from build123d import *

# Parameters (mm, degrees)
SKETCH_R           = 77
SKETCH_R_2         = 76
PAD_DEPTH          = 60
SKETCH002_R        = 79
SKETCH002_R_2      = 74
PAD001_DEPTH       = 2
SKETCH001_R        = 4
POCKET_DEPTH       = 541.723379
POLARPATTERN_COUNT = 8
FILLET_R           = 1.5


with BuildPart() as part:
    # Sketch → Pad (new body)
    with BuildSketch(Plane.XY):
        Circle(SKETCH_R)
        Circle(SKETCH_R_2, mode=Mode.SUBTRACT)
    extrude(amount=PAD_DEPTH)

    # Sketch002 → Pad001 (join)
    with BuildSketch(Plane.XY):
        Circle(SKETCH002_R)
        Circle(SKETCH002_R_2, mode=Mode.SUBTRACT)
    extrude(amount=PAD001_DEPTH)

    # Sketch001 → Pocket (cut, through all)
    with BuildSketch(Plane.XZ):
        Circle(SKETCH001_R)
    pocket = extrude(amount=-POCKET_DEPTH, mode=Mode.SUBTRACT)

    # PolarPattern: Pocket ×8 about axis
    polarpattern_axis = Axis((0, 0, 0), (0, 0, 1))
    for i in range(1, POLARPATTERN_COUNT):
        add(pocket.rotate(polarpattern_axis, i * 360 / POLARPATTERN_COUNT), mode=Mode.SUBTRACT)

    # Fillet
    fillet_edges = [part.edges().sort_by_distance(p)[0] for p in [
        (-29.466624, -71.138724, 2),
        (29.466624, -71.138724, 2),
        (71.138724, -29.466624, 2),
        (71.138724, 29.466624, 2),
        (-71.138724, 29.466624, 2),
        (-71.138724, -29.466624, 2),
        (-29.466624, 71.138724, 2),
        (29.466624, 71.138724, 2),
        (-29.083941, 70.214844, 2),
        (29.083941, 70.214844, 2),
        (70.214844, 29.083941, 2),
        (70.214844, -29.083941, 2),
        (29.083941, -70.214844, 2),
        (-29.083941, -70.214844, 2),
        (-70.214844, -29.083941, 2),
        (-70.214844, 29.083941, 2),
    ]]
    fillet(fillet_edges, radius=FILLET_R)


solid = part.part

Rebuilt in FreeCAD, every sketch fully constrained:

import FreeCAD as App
import Part
import Sketcher
from FreeCAD import Vector


def edges_at(feature, points):
    """Names of the edges that pass closest to the given points."""
    edges = feature.Shape.Edges
    near = lambda p: min(range(len(edges)), key=lambda i: edges[i].distToShape(Part.Vertex(*p))[0])
    return sorted({f"Edge{near(p) + 1}" for p in points})

doc = App.newDocument("Part")
body = doc.addObject("PartDesign::Body", "Body")

sketch1 = body.newObject("Sketcher::SketchObject", "Sketch")
sketch1.AttachmentSupport = (doc.getObject("XY_Plane"), [""])
sketch1.MapMode = "FlatFace"
sketch1.addGeometry([
    Part.Circle(Vector(0, 0, 0), Vector(0, 0, 1), 77),
    Part.Circle(Vector(0, 0, 0), Vector(0, 0, 1), 76),
], False)
sketch1.addConstraint([
    Sketcher.Constraint("Coincident", 0, 3, -1, 1),
    Sketcher.Constraint("Coincident", 1, 3, -1, 1),
    Sketcher.Constraint("Diameter", 0, 154.0),
    Sketcher.Constraint("Diameter", 1, 152.0),
])
pad1 = body.newObject("PartDesign::Pad", "Pad")
pad1.Profile = sketch1
pad1.Length = 60

sketch2 = body.newObject("Sketcher::SketchObject", "Sketch001")
sketch2.AttachmentSupport = (doc.getObject("XY_Plane"), [""])
sketch2.MapMode = "FlatFace"
sketch2.addGeometry([
    Part.Circle(Vector(0, 0, 0), Vector(0, 0, 1), 79),
    Part.Circle(Vector(0, 0, 0), Vector(0, 0, 1), 74),
], False)
sketch2.addConstraint([
    Sketcher.Constraint("Coincident", 0, 3, -1, 1),
    Sketcher.Constraint("Coincident", 1, 3, -1, 1),
    Sketcher.Constraint("Diameter", 0, 158.0),
    Sketcher.Constraint("Diameter", 1, 148.0),
])
pad2 = body.newObject("PartDesign::Pad", "Pad001")
pad2.Profile = sketch2
pad2.Length = 2

sketch3 = body.newObject("Sketcher::SketchObject", "Sketch002")
sketch3.AttachmentSupport = (doc.getObject("XZ_Plane"), [""])
sketch3.MapMode = "FlatFace"
sketch3.addGeometry(Part.Circle(Vector(0, 0, 0), Vector(0, 0, 1), 4), False)
sketch3.addConstraint([
    Sketcher.Constraint("Coincident", 0, 3, -1, 1),
    Sketcher.Constraint("Diameter", 0, 8.0),
])
pocket1 = body.newObject("PartDesign::Pocket", "Pocket")
pocket1.Profile = sketch3
pocket1.Type = "ThroughAll"
doc.recompute()

polarpattern = body.newObject("PartDesign::PolarPattern", "PolarPattern")
polarpattern.Originals = [pocket1]
polarpattern.Axis = (doc.getObject("Z_Axis"), [""])
polarpattern.Angle = 360
polarpattern.Occurrences = 8
body.Tip = polarpattern
doc.recompute()

fillet = body.newObject("PartDesign::Fillet", "Fillet")
fillet.Base = (polarpattern, edges_at(polarpattern, [
    (-29.467, -71.139, 2),
    (29.467, -71.139, 2),
    (71.139, -29.467, 2),
    (71.139, 29.467, 2),
    (-71.139, 29.467, 2),
    (-71.139, -29.467, 2),
    (-29.467, 71.139, 2),
    (29.467, 71.139, 2),
    (-29.084, 70.215, 2),
    (29.084, 70.215, 2),
    (70.215, 29.084, 2),
    (70.215, -29.084, 2),
    (29.084, -70.215, 2),
    (-29.084, -70.215, 2),
    (-70.215, -29.084, 2),
    (-70.215, 29.084, 2),
]))
fillet.Radius = 1.5

doc.recompute()
